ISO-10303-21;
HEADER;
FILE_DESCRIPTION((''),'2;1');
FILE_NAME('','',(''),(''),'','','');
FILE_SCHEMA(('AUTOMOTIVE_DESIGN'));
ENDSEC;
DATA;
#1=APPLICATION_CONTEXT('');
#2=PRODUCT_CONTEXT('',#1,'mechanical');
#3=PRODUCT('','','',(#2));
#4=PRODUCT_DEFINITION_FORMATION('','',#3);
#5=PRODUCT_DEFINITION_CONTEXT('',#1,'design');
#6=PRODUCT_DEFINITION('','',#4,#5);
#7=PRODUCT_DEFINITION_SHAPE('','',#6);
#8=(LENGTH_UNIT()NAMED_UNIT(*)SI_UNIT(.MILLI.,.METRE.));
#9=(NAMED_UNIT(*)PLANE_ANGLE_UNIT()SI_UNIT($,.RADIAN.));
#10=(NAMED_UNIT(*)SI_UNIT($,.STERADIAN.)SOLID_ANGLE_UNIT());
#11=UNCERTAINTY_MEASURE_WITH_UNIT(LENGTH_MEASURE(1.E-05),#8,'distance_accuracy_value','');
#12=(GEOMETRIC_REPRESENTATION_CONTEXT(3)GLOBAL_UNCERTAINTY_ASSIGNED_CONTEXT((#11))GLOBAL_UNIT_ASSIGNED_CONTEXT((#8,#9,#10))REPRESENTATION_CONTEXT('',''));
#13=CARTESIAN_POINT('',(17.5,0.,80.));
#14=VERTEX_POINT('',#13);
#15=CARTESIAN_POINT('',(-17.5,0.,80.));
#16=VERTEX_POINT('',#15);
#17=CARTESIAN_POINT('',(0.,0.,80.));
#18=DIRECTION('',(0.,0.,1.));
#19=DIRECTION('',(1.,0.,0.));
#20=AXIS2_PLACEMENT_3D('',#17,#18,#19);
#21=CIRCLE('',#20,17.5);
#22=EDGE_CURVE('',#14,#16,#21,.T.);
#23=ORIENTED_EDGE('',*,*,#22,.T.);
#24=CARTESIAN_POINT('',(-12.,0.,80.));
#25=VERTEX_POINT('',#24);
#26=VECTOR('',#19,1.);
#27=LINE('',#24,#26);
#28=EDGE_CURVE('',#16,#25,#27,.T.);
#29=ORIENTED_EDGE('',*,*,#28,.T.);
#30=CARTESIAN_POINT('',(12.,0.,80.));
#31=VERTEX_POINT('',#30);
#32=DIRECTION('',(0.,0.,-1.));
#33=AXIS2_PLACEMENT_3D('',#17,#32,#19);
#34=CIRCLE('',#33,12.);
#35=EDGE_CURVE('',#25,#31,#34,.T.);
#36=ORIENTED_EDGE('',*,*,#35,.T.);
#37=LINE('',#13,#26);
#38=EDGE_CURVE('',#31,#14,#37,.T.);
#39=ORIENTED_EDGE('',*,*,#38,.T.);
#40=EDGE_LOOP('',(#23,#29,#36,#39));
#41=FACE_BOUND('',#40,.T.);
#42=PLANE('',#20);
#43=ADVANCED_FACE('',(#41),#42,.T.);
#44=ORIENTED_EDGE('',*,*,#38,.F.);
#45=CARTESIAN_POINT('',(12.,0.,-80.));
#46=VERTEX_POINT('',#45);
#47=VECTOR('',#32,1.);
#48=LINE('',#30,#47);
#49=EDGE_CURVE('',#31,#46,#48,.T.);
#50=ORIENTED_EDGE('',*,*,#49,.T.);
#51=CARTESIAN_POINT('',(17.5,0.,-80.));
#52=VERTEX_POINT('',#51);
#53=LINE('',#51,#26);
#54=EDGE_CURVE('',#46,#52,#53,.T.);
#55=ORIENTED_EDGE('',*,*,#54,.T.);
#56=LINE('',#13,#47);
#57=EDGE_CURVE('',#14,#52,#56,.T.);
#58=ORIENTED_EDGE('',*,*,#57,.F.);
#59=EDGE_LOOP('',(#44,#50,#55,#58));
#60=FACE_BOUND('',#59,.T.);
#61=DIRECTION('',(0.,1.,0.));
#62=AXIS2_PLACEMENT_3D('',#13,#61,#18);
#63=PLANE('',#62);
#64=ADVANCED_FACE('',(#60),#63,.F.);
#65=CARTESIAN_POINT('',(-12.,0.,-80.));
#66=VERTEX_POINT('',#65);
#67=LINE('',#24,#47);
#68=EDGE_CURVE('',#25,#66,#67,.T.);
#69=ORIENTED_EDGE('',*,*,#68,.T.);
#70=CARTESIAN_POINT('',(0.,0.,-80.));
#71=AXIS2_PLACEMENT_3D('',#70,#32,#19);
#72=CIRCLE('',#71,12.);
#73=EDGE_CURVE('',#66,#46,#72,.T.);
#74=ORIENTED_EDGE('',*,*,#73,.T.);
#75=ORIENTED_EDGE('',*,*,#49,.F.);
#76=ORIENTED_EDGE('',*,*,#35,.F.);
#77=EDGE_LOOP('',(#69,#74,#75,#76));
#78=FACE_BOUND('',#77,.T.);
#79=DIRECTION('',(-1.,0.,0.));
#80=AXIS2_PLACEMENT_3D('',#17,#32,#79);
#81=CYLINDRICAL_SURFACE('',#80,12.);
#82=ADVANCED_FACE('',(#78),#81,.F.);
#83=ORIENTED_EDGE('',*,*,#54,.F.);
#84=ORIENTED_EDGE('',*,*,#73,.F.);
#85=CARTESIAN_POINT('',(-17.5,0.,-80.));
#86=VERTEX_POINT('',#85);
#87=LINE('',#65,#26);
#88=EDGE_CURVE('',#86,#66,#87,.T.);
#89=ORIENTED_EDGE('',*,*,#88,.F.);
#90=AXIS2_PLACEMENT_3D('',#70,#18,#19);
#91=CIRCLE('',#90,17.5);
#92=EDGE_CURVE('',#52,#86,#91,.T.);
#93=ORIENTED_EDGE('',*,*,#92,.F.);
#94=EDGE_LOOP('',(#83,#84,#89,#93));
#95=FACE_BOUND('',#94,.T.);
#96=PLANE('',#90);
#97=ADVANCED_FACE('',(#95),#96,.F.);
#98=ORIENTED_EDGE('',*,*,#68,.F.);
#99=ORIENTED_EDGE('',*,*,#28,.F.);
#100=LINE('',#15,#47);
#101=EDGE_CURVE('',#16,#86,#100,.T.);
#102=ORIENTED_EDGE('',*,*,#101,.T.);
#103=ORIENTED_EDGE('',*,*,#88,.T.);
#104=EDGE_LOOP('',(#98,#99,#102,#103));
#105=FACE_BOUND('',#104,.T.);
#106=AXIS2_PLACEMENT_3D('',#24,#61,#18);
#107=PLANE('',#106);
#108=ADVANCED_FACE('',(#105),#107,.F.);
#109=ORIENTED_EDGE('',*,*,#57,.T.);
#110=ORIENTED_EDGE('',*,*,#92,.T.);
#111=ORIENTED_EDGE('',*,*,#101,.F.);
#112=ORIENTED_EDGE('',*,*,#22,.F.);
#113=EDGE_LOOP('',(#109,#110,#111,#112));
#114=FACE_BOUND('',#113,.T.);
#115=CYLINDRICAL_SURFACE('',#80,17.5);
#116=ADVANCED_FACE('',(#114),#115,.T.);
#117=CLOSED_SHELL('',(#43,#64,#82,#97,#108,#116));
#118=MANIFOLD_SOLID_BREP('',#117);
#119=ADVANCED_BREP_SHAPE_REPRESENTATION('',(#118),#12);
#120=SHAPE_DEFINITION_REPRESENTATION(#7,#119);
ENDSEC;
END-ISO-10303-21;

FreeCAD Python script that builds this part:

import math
import FreeCAD as App
import Part
import Sketcher

V = App.Vector

doc = App.newDocument("Part")
body = doc.addObject("PartDesign::Body", "Body")

sketch1 = doc.addObject("Sketcher::SketchObject", "Sketch")
body.addObject(sketch1)
sketch1.AttachmentSupport = (doc.XY_Plane, [""])
sketch1.MapMode = "FlatFace"
sketch1.addGeometry([
    Part.LineSegment(V(12, 0, 0), V(18, 0, 0)),
    Part.ArcOfCircle(Part.Circle(V(0, 0, 0), V(0, 0, 1), 18), math.radians(0), math.radians(180)),
    Part.LineSegment(V(-18, 0, 0), V(-12, 0, 0)),
    Part.ArcOfCircle(Part.Circle(V(0, 0, 0), V(0, 0, 1), 12), math.radians(0), math.radians(180)),
], False)
sketch1.addConstraint([
    Sketcher.Constraint("Coincident", 0, 2, 1, 1),
    Sketcher.Constraint("Coincident", 1, 2, 2, 1),
    Sketcher.Constraint("Coincident", 2, 2, 3, 2),
    Sketcher.Constraint("Coincident", 3, 1, 0, 1),
    Sketcher.Constraint("Horizontal", 0),
    Sketcher.Constraint("Horizontal", 2),
    Sketcher.Constraint("Coincident", 1, 3, -1, 1),
    Sketcher.Constraint("Coincident", 3, 3, -1, 1),
    Sketcher.Constraint("PointOnObject", 0, 2, -1),
    Sketcher.Constraint("PointOnObject", 1, 2, -1),
    Sketcher.Constraint("Radius", 3, 12.0),
    Sketcher.Constraint("Radius", 1, 17.5),
])
pad1 = doc.addObject("PartDesign::Pad", "Pad")
body.addObject(pad1)
pad1.Profile = sketch1
pad1.Length = 160
pad1.Midplane = True

doc.recompute()
